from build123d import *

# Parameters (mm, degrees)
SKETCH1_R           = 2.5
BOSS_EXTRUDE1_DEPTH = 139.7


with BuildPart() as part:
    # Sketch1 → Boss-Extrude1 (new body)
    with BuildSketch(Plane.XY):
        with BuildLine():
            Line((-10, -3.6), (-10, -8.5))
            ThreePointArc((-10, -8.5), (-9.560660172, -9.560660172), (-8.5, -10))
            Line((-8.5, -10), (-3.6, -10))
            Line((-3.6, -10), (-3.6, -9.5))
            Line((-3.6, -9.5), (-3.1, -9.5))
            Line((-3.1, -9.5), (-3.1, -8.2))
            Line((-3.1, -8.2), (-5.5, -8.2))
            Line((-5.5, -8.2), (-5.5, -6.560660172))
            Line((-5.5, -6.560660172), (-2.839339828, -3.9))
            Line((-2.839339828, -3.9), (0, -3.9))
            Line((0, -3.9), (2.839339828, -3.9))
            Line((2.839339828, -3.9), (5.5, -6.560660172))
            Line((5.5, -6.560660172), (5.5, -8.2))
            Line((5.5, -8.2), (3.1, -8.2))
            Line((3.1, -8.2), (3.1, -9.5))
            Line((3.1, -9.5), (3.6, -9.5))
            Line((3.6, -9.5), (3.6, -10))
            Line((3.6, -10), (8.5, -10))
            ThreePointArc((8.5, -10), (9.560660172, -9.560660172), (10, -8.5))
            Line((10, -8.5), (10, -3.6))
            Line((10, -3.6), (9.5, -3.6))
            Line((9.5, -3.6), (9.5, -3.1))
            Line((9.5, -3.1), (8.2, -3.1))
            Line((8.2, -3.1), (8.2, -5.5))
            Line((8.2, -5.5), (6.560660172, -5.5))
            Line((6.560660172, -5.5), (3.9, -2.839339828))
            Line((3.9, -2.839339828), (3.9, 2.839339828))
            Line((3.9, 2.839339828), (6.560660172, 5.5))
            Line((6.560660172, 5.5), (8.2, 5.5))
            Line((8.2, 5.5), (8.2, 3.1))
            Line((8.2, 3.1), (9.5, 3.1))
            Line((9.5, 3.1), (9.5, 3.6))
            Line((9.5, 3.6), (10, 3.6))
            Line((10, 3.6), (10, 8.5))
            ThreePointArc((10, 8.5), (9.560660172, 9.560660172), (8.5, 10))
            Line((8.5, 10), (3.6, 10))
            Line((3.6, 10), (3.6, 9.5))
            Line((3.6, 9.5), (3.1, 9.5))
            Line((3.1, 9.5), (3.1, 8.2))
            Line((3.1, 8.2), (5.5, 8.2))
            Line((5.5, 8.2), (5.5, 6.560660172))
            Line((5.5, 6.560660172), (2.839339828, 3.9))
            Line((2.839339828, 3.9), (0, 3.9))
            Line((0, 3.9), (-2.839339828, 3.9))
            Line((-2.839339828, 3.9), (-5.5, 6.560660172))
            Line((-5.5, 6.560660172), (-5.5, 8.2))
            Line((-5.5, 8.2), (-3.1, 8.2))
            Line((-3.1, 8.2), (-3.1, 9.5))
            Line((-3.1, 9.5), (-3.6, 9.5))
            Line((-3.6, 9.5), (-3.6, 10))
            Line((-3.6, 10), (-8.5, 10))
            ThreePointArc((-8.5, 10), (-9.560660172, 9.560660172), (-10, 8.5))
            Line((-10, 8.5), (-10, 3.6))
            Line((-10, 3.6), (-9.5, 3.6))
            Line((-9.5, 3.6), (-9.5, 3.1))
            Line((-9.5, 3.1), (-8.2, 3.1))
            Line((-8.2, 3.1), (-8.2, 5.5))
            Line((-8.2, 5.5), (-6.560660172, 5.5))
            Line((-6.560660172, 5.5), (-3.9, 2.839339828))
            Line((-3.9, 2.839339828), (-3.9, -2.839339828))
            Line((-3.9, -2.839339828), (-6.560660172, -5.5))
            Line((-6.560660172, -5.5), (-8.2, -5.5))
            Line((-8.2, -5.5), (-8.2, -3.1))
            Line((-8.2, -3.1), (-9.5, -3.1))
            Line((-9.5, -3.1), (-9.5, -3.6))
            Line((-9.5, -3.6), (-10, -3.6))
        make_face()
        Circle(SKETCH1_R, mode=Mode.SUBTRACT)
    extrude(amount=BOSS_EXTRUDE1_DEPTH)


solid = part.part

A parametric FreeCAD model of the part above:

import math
import FreeCAD as App
import Part
import Sketcher

doc = App.newDocument("Part")
body = doc.addObject("PartDesign::Body", "Body")

# Sketch on XY plane
sketch1 = doc.addObject("Sketcher::SketchObject", "Sketch")
body.addObject(sketch1)
sketch1.AttachmentSupport = (doc.XY_Plane, [""])
sketch1.MapMode = "FlatFace"
sketch1.addGeometry([
    Part.LineSegment(App.Vector(-10, -3.6, 0), App.Vector(-10, -8.5, 0)),  # 0
    Part.ArcOfCircle(Part.Circle(App.Vector(-8.5, -8.5, 0), App.Vector(0, 0, 1), 1.5), math.radians(180), math.radians(270)),  # 1
    Part.LineSegment(App.Vector(-8.5, -10, 0), App.Vector(-3.6, -10, 0)),  # 2
    Part.LineSegment(App.Vector(-3.6, -10, 0), App.Vector(-3.6, -9.5, 0)),  # 3
    Part.LineSegment(App.Vector(-3.6, -9.5, 0), App.Vector(-3.1, -9.5, 0)),  # 4
    Part.LineSegment(App.Vector(-3.1, -9.5, 0), App.Vector(-3.1, -8.2, 0)),  # 5
    Part.LineSegment(App.Vector(-3.1, -8.2, 0), App.Vector(-5.5, -8.2, 0)),  # 6
    Part.LineSegment(App.Vector(-5.5, -8.2, 0), App.Vector(-5.5, -6.6, 0)),  # 7
    Part.LineSegment(App.Vector(-5.5, -6.6, 0), App.Vector(-2.8, -3.9, 0)),  # 8
    Part.LineSegment(App.Vector(-2.8, -3.9, 0), App.Vector(2.8, -3.9, 0)),  # 9
    Part.LineSegment(App.Vector(2.8, -3.9, 0), App.Vector(5.5, -6.6, 0)),  # 10
    Part.LineSegment(App.Vector(5.5, -6.6, 0), App.Vector(5.5, -8.2, 0)),  # 11
    Part.LineSegment(App.Vector(5.5, -8.2, 0), App.Vector(3.1, -8.2, 0)),  # 12
    Part.LineSegment(App.Vector(3.1, -8.2, 0), App.Vector(3.1, -9.5, 0)),  # 13
    Part.LineSegment(App.Vector(3.1, -9.5, 0), App.Vector(3.6, -9.5, 0)),  # 14
    Part.LineSegment(App.Vector(3.6, -9.5, 0), App.Vector(3.6, -10, 0)),  # 15
    Part.LineSegment(App.Vector(3.6, -10, 0), App.Vector(8.5, -10, 0)),  # 16
    Part.ArcOfCircle(Part.Circle(App.Vector(8.5, -8.5, 0), App.Vector(0, 0, 1), 1.5), math.radians(-90), math.radians(0)),  # 17
    Part.LineSegment(App.Vector(10, -8.5, 0), App.Vector(10, -3.6, 0)),  # 18
    Part.LineSegment(App.Vector(10, -3.6, 0), App.Vector(9.5, -3.6, 0)),  # 19
    Part.LineSegment(App.Vector(9.5, -3.6, 0), App.Vector(9.5, -3.1, 0)),  # 20
    Part.LineSegment(App.Vector(9.5, -3.1, 0), App.Vector(8.2, -3.1, 0)),  # 21
    Part.LineSegment(App.Vector(8.2, -3.1, 0), App.Vector(8.2, -5.5, 0)),  # 22
    Part.LineSegment(App.Vector(8.2, -5.5, 0), App.Vector(6.6, -5.5, 0)),  # 23
    Part.LineSegment(App.Vector(6.6, -5.5, 0), App.Vector(3.9, -2.8, 0)),  # 24
    Part.LineSegment(App.Vector(3.9, -2.8, 0), App.Vector(3.9, 2.8, 0)),  # 25
    Part.LineSegment(App.Vector(3.9, 2.8, 0), App.Vector(6.6, 5.5, 0)),  # 26
    Part.LineSegment(App.Vector(6.6, 5.5, 0), App.Vector(8.2, 5.5, 0)),  # 27
    Part.LineSegment(App.Vector(8.2, 5.5, 0), App.Vector(8.2, 3.1, 0)),  # 28
    Part.LineSegment(App.Vector(8.2, 3.1, 0), App.Vector(9.5, 3.1, 0)),  # 29
    Part.LineSegment(App.Vector(9.5, 3.1, 0), App.Vector(9.5, 3.6, 0)),  # 30
    Part.LineSegment(App.Vector(9.5, 3.6, 0), App.Vector(10, 3.6, 0)),  # 31
    Part.LineSegment(App.Vector(10, 3.6, 0), App.Vector(10, 8.5, 0)),  # 32
    Part.ArcOfCircle(Part.Circle(App.Vector(8.5, 8.5, 0), App.Vector(0, 0, 1), 1.5), math.radians(0), math.radians(90)),  # 33
    Part.LineSegment(App.Vector(8.5, 10, 0), App.Vector(3.6, 10, 0)),  # 34
    Part.LineSegment(App.Vector(3.6, 10, 0), App.Vector(3.6, 9.5, 0)),  # 35
    Part.LineSegment(App.Vector(3.6, 9.5, 0), App.Vector(3.1, 9.5, 0)),  # 36
    Part.LineSegment(App.Vector(3.1, 9.5, 0), App.Vector(3.1, 8.2, 0)),  # 37
    Part.LineSegment(App.Vector(3.1, 8.2, 0), App.Vector(5.5, 8.2, 0)),  # 38
    Part.LineSegment(App.Vector(5.5, 8.2, 0), App.Vector(5.5, 6.6, 0)),  # 39
    Part.LineSegment(App.Vector(5.5, 6.6, 0), App.Vector(2.8, 3.9, 0)),  # 40
    Part.LineSegment(App.Vector(2.8, 3.9, 0), App.Vector(-2.8, 3.9, 0)),  # 41
    Part.LineSegment(App.Vector(-2.8, 3.9, 0), App.Vector(-5.5, 6.6, 0)),  # 42
    Part.LineSegment(App.Vector(-5.5, 6.6, 0), App.Vector(-5.5, 8.2, 0)),  # 43
    Part.LineSegment(App.Vector(-5.5, 8.2, 0), App.Vector(-3.1, 8.2, 0)),  # 44
    Part.LineSegment(App.Vector(-3.1, 8.2, 0), App.Vector(-3.1, 9.5, 0)),  # 45
    Part.LineSegment(App.Vector(-3.1, 9.5, 0), App.Vector(-3.6, 9.5, 0)),  # 46
    Part.LineSegment(App.Vector(-3.6, 9.5, 0), App.Vector(-3.6, 10, 0)),  # 47
    Part.LineSegment(App.Vector(-3.6, 10, 0), App.Vector(-8.5, 10, 0)),  # 48
    Part.ArcOfCircle(Part.Circle(App.Vector(-8.5, 8.5, 0), App.Vector(0, 0, 1), 1.5), math.radians(90), math.radians(180)),  # 49
    Part.LineSegment(App.Vector(-10, 8.5, 0), App.Vector(-10, 3.6, 0)),  # 50
    Part.LineSegment(App.Vector(-10, 3.6, 0), App.Vector(-9.5, 3.6, 0)),  # 51
    Part.LineSegment(App.Vector(-9.5, 3.6, 0), App.Vector(-9.5, 3.1, 0)),  # 52
    Part.LineSegment(App.Vector(-9.5, 3.1, 0), App.Vector(-8.2, 3.1, 0)),  # 53
    Part.LineSegment(App.Vector(-8.2, 3.1, 0), App.Vector(-8.2, 5.5, 0)),  # 54
    Part.LineSegment(App.Vector(-8.2, 5.5, 0), App.Vector(-6.6, 5.5, 0)),  # 55
    Part.LineSegment(App.Vector(-6.6, 5.5, 0), App.Vector(-3.9, 2.8, 0)),  # 56
    Part.LineSegment(App.Vector(-3.9, 2.8, 0), App.Vector(-3.9, -2.8, 0)),  # 57
    Part.LineSegment(App.Vector(-3.9, -2.8, 0), App.Vector(-6.6, -5.5, 0)),  # 58
    Part.LineSegment(App.Vector(-6.6, -5.5, 0), App.Vector(-8.2, -5.5, 0)),  # 59
    Part.LineSegment(App.Vector(-8.2, -5.5, 0), App.Vector(-8.2, -3.1, 0)),  # 60
    Part.LineSegment(App.Vector(-8.2, -3.1, 0), App.Vector(-9.5, -3.1, 0)),  # 61
    Part.LineSegment(App.Vector(-9.5, -3.1, 0), App.Vector(-9.5, -3.6, 0)),  # 62
    Part.LineSegment(App.Vector(-9.5, -3.6, 0), App.Vector(-10, -3.6, 0)),  # 63
    Part.Circle(App.Vector(0, 0, 0), App.Vector(0, 0, 1), 2.5),  # 64
], False)
sketch1.addConstraint([
    Sketcher.Constraint("Tangent", 0, 2, 1, 1),
    Sketcher.Constraint("Tangent", 1, 2, 2, 1),
    Sketcher.Constraint("Coincident", 2, 2, 3, 1),
    Sketcher.Constraint("Coincident", 3, 2, 4, 1),
    Sketcher.Constraint("Coincident", 4, 2, 5, 1),
    Sketcher.Constraint("Coincident", 5, 2, 6, 1),
    Sketcher.Constraint("Coincident", 6, 2, 7, 1),
    Sketcher.Constraint("Coincident", 7, 2, 8, 1),
    Sketcher.Constraint("Coincident", 8, 2, 9, 1),
    Sketcher.Constraint("Coincident", 9, 2, 10, 1),
    Sketcher.Constraint("Coincident", 10, 2, 11, 1),
    Sketcher.Constraint("Coincident", 11, 2, 12, 1),
    Sketcher.Constraint("Coincident", 12, 2, 13, 1),
    Sketcher.Constraint("Coincident", 13, 2, 14, 1),
    Sketcher.Constraint("Coincident", 14, 2, 15, 1),
    Sketcher.Constraint("Coincident", 15, 2, 16, 1),
    Sketcher.Constraint("Tangent", 16, 2, 17, 1),
    Sketcher.Constraint("Tangent", 17, 2, 18, 1),
    Sketcher.Constraint("Coincident", 18, 2, 19, 1),
    Sketcher.Constraint("Coincident", 19, 2, 20, 1),
    Sketcher.Constraint("Coincident", 20, 2, 21, 1),
    Sketcher.Constraint("Coincident", 21, 2, 22, 1),
    Sketcher.Constraint("Coincident", 22, 2, 23, 1),
    Sketcher.Constraint("Coincident", 23, 2, 24, 1),
    Sketcher.Constraint("Coincident", 24, 2, 25, 1),
    Sketcher.Constraint("Coincident", 25, 2, 26, 1),
    Sketcher.Constraint("Coincident", 26, 2, 27, 1),
    Sketcher.Constraint("Coincident", 27, 2, 28, 1),
    Sketcher.Constraint("Coincident", 28, 2, 29, 1),
    Sketcher.Constraint("Coincident", 29, 2, 30, 1),
    Sketcher.Constraint("Coincident", 30, 2, 31, 1),
    Sketcher.Constraint("Coincident", 31, 2, 32, 1),
    Sketcher.Constraint("Tangent", 32, 2, 33, 1),
    Sketcher.Constraint("Tangent", 33, 2, 34, 1),
    Sketcher.Constraint("Coincident", 34, 2, 35, 1),
    Sketcher.Constraint("Coincident", 35, 2, 36, 1),
    Sketcher.Constraint("Coincident", 36, 2, 37, 1),
    Sketcher.Constraint("Coincident", 37, 2, 38, 1),
    Sketcher.Constraint("Coincident", 38, 2, 39, 1),
    Sketcher.Constraint("Coincident", 39, 2, 40, 1),
    Sketcher.Constraint("Coincident", 40, 2, 41, 1),
    Sketcher.Constraint("Coincident", 41, 2, 42, 1),
    Sketcher.Constraint("Coincident", 42, 2, 43, 1),
    Sketcher.Constraint("Coincident", 43, 2, 44, 1),
    Sketcher.Constraint("Coincident", 44, 2, 45, 1),
    Sketcher.Constraint("Coincident", 45, 2, 46, 1),
    Sketcher.Constraint("Coincident", 46, 2, 47, 1),
    Sketcher.Constraint("Coincident", 47, 2, 48, 1),
    Sketcher.Constraint("Tangent", 48, 2, 49, 1),
    Sketcher.Constraint("Tangent", 49, 2, 50, 1),
    Sketcher.Constraint("Coincident", 50, 2, 51, 1),
    Sketcher.Constraint("Coincident", 51, 2, 52, 1),
    Sketcher.Constraint("Coincident", 52, 2, 53, 1),
    Sketcher.Constraint("Coincident", 53, 2, 54, 1),
    Sketcher.Constraint("Coincident", 54, 2, 55, 1),
    Sketcher.Constraint("Coincident", 55, 2, 56, 1),
    Sketcher.Constraint("Coincident", 56, 2, 57, 1),
    Sketcher.Constraint("Coincident", 57, 2, 58, 1),
    Sketcher.Constraint("Coincident", 58, 2, 59, 1),
    Sketcher.Constraint("Coincident", 59, 2, 60, 1),
    Sketcher.Constraint("Coincident", 60, 2, 61, 1),
    Sketcher.Constraint("Coincident", 61, 2, 62, 1),
    Sketcher.Constraint("Coincident", 62, 2, 63, 1),
    Sketcher.Constraint("Coincident", 63, 2, 0, 1),
    Sketcher.Constraint("Vertical", 0),
    Sketcher.Constraint("Horizontal", 2),
    Sketcher.Constraint("Vertical", 3),
    Sketcher.Constraint("Horizontal", 4),
    Sketcher.Constraint("Vertical", 5),
    Sketcher.Constraint("Horizontal", 6),
    Sketcher.Constraint("Vertical", 7),
    Sketcher.Constraint("Horizontal", 9),
    Sketcher.Constraint("Vertical", 11),
    Sketcher.Constraint("Horizontal", 12),
    Sketcher.Constraint("Vertical", 13),
    Sketcher.Constraint("Horizontal", 14),
    Sketcher.Constraint("Vertical", 15),
    Sketcher.Constraint("Horizontal", 16),
    Sketcher.Constraint("Vertical", 18),
    Sketcher.Constraint("Horizontal", 19),
    Sketcher.Constraint("Vertical", 20),
    Sketcher.Constraint("Horizontal", 21),
    Sketcher.Constraint("Vertical", 22),
    Sketcher.Constraint("Horizontal", 23),
    Sketcher.Constraint("Vertical", 25),
    Sketcher.Constraint("Horizontal", 27),
    Sketcher.Constraint("Vertical", 28),
    Sketcher.Constraint("Horizontal", 29),
    Sketcher.Constraint("Vertical", 30),
    Sketcher.Constraint("Horizontal", 31),
    Sketcher.Constraint("Vertical", 32),
    Sketcher.Constraint("Horizontal", 34),
    Sketcher.Constraint("Vertical", 35),
    Sketcher.Constraint("Horizontal", 36),
    Sketcher.Constraint("Vertical", 37),
    Sketcher.Constraint("Horizontal", 38),
    Sketcher.Constraint("Vertical", 39),
    Sketcher.Constraint("Horizontal", 41),
    Sketcher.Constraint("Vertical", 43),
    Sketcher.Constraint("Horizontal", 44),
    Sketcher.Constraint("Vertical", 45),
    Sketcher.Constraint("Horizontal", 46),
    Sketcher.Constraint("Vertical", 47),
    Sketcher.Constraint("Horizontal", 48),
    Sketcher.Constraint("Vertical", 50),
    Sketcher.Constraint("Horizontal", 51),
    Sketcher.Constraint("Vertical", 52),
    Sketcher.Constraint("Horizontal", 53),
    Sketcher.Constraint("Vertical", 54),
    Sketcher.Constraint("Horizontal", 55),
    Sketcher.Constraint("Vertical", 57),
    Sketcher.Constraint("Horizontal", 59),
    Sketcher.Constraint("Vertical", 60),
    Sketcher.Constraint("Horizontal", 61),
    Sketcher.Constraint("Vertical", 62),
    Sketcher.Constraint("Horizontal", 63),
    Sketcher.Constraint("Coincident", 64, 3, -1, 1),
    Sketcher.Constraint("Equal", 1, 17),
    Sketcher.Constraint("Equal", 17, 33),
    Sketcher.Constraint("Equal", 33, 49),
    Sketcher.Constraint("Symmetric", 1, 3, 33, 3, -1, 1),
    Sketcher.Constraint("Symmetric", 17, 3, 49, 3, -1, 1),
    Sketcher.Constraint("Symmetric", 3, 2, 35, 2, -1, 1),
    Sketcher.Constraint("Symmetric", 5, 2, 37, 2, -1, 1),
    Sketcher.Constraint("Symmetric", 7, 2, 39, 2, -1, 1),
    Sketcher.Constraint("Symmetric", 8, 2, 40, 2, -1, 1),
    Sketcher.Constraint("Symmetric", 10, 2, 42, 2, -1, 1),
    Sketcher.Constraint("Symmetric", 12, 2, 44, 2, -1, 1),
    Sketcher.Constraint("Symmetric", 14, 2, 46, 2, -1, 1),
    Sketcher.Constraint("Symmetric", 19, 2, 51, 2, -1, 1),
    Sketcher.Constraint("Symmetric", 21, 2, 53, 2, -1, 1),
    Sketcher.Constraint("Symmetric", 23, 2, 55, 2, -1, 1),
    Sketcher.Constraint("Symmetric", 24, 2, 56, 2, -1, 1),
    Sketcher.Constraint("Symmetric", 26, 2, 58, 2, -1, 1),
    Sketcher.Constraint("Symmetric", 28, 2, 60, 2, -1, 1),
    Sketcher.Constraint("Symmetric", 30, 2, 62, 2, -1, 1),
    Sketcher.Constraint("Symmetric", 1, 3, 17, 3, -2),
    Sketcher.Constraint("Symmetric", 7, 2, 10, 2, -2),
    Sketcher.Constraint("Symmetric", 5, 2, 12, 2, -2),
    Sketcher.Constraint("Symmetric", 3, 2, 14, 2, -2),
    Sketcher.Constraint("Symmetric", 30, 2, 51, 2, -2),
    Sketcher.Constraint("Symmetric", 28, 2, 53, 2, -2),
    Sketcher.Constraint("Symmetric", 26, 2, 55, 2, -2),
    Sketcher.Constraint("Perpendicular", 8, 10),
    Sketcher.Constraint("Parallel", 10, 24),
    Sketcher.Constraint("Perpendicular", 24, 26),
    Sketcher.Constraint("Perpendicular", 40, 42),
    Sketcher.Constraint("Perpendicular", 56, 58),
    Sketcher.Constraint("Horizontal", 25, 2, 56, 2),
    Sketcher.Constraint("Equal", 14, 19),
    Sketcher.Constraint("Equal", 48, 0),
    Sketcher.Constraint("Equal", 63, 3),
    Sketcher.Constraint("Equal", 61, 5),
    Sketcher.Constraint("Equal", 59, 7),
    Sketcher.Constraint("Equal", 15, 20),
    Sketcher.Constraint("Equal", 44, 22),
    Sketcher.Constraint("Equal", 41, 25),
    Sketcher.Constraint("Equal", 10, 24),
    Sketcher.Constraint("Diameter", 64, 5.0),
    Sketcher.Constraint("Radius", 1, 1.5),
    Sketcher.Constraint("DistanceX", 2, 1, 2, 2, 4.9),
    Sketcher.Constraint("DistanceX", 4, 1, 4, 2, 0.5),
    Sketcher.Constraint("DistanceX", 6, 2, 6, 1, 2.4),
    Sketcher.Constraint("DistanceX", 21, 2, 21, 1, 1.3),
    Sketcher.Constraint("DistanceX", 0, 2, -1, 1, 10.0),
    Sketcher.Constraint("DistanceY", 8, 2, -1, 1, 3.9),
    Sketcher.Constraint("DistanceX", 9, 1, 9, 2, 5.67868),
])
pad1 = doc.addObject("PartDesign::Pad", "Pad")
body.addObject(pad1)
pad1.Profile = sketch1
pad1.Length = 139.7

doc.recompute()
